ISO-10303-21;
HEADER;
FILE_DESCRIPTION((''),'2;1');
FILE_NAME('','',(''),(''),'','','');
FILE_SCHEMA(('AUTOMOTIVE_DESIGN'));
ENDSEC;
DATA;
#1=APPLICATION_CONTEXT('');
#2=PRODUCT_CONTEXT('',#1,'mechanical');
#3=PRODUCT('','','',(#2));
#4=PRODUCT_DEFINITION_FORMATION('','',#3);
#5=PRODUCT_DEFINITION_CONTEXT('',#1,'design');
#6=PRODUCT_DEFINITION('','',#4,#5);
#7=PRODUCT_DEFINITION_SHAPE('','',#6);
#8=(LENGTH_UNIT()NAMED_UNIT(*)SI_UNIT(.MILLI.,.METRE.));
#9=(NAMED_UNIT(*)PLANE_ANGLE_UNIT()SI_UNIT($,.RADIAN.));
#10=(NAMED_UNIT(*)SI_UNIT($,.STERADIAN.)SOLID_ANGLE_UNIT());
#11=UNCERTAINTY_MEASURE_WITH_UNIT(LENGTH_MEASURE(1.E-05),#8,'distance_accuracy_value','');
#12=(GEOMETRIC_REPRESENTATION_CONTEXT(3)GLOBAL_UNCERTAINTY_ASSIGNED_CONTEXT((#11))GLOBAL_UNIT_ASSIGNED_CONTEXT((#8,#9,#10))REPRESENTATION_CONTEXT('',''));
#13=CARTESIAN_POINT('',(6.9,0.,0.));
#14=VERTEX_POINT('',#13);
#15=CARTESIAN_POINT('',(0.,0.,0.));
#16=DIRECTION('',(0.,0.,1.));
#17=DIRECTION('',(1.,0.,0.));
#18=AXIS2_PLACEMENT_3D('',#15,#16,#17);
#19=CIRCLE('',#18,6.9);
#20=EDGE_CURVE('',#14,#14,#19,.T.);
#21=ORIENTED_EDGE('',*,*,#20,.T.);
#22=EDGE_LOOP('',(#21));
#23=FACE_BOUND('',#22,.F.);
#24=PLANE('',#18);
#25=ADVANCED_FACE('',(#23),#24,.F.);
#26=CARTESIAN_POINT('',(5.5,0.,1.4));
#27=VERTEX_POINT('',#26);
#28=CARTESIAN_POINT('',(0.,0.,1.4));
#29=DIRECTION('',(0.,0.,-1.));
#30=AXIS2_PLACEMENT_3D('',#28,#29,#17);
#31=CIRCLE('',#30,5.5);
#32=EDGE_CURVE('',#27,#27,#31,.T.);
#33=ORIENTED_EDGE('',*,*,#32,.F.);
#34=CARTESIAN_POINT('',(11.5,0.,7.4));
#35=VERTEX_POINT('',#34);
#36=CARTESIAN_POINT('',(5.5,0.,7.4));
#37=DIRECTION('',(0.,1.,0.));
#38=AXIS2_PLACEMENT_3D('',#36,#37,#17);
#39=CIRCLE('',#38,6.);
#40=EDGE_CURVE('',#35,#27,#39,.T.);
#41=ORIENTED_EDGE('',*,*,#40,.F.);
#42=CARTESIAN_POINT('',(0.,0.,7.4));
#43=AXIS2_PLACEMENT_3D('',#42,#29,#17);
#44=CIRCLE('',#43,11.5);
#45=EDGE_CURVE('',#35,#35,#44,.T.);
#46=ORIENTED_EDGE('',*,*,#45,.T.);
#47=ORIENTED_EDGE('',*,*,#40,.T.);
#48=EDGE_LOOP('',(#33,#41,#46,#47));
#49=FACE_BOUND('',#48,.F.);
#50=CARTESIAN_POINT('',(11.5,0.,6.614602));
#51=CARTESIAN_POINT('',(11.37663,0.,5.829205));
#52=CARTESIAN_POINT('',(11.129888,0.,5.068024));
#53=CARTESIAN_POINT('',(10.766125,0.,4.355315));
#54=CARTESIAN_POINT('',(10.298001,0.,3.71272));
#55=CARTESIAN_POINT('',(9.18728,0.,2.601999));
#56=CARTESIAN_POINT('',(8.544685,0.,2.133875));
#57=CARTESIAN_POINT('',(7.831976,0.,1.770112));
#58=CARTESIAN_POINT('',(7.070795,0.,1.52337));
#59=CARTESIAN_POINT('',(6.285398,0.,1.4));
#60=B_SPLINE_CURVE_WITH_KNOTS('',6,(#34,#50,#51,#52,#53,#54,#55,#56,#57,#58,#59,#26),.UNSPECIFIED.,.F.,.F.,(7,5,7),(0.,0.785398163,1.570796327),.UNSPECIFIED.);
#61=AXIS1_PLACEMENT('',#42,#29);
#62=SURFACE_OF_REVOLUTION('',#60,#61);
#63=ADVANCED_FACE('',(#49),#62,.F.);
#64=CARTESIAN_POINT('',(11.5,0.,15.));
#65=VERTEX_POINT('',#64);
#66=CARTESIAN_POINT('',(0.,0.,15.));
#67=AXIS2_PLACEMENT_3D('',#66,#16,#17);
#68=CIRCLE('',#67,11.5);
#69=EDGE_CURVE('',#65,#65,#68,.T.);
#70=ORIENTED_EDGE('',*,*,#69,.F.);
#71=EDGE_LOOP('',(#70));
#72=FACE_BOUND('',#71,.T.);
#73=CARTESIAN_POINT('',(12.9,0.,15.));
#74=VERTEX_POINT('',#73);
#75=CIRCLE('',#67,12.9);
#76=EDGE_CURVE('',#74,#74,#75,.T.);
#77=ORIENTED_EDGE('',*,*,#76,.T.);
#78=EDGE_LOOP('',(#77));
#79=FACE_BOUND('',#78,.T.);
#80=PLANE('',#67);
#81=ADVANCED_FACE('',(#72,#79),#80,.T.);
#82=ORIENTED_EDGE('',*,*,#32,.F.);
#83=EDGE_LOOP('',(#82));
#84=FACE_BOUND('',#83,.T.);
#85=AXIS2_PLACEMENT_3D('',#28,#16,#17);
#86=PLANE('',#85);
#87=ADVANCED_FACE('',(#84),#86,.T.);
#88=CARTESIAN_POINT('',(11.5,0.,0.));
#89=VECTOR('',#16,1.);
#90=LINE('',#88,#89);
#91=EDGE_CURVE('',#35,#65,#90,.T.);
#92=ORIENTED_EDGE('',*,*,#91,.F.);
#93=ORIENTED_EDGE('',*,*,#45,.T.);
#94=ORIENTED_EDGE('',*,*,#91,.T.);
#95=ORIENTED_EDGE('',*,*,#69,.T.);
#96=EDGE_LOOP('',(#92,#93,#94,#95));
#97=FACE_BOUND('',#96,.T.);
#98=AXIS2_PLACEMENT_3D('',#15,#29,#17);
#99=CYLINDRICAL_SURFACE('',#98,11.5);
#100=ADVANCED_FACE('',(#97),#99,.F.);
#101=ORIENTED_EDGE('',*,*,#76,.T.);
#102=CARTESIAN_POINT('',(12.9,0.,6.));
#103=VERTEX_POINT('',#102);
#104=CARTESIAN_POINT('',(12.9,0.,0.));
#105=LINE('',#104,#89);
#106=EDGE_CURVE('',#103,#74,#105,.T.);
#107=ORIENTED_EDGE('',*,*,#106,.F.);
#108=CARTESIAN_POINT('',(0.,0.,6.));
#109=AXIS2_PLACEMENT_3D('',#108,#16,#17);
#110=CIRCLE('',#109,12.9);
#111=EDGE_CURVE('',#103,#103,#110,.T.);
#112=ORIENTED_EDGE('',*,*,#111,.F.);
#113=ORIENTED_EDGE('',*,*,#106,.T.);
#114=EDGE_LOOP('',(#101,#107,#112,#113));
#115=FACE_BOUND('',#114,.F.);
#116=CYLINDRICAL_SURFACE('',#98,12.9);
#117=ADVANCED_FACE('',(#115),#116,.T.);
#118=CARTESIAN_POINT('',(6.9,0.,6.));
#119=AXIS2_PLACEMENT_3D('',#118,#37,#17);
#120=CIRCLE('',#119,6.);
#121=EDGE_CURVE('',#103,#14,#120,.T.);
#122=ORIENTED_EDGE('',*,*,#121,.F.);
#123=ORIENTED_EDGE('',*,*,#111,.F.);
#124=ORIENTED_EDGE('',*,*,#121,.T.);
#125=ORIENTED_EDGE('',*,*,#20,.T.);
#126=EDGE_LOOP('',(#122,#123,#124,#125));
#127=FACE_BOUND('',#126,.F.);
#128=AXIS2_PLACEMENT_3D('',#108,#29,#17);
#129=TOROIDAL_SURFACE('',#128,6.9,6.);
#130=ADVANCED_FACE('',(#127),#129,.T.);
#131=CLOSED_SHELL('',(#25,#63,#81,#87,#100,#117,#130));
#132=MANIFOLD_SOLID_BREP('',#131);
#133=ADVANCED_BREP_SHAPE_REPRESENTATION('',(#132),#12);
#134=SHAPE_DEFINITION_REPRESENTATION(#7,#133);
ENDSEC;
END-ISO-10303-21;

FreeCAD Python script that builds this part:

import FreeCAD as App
import Part
import Sketcher

V = App.Vector


def edges_at(feature, points):
    """Names of the edges that pass closest to the given points."""
    edges = feature.Shape.Edges
    near = lambda p: min(range(len(edges)), key=lambda i: edges[i].distToShape(Part.Vertex(*p))[0])
    return sorted({f"Edge{near(p) + 1}" for p in points})


def faces_at(feature, points):
    """Names of the faces that lie closest to the given points."""
    faces = feature.Shape.Faces
    near = lambda p: min(range(len(faces)), key=lambda i: faces[i].distToShape(Part.Vertex(*p))[0])
    return sorted({f"Face{near(p) + 1}" for p in points})

doc = App.newDocument("Part")
params = doc.addObject("Spreadsheet::Sheet", "Params")
for row, (alias, value) in enumerate([
    ("sketch1_diameter", "25.8 mm"),
    ("pad1_length", "15 mm"),
    ("thickness_wall", "1.4 mm"),
    ("fillet_radius", "6 mm"),
], start=1):
    params.set(f"A{row}", alias)
    params.set(f"B{row}", "=" + value)
    params.setAlias(f"B{row}", alias)

body = doc.addObject("PartDesign::Body", "Body")

sketch1 = body.newObject("Sketcher::SketchObject", "Sketch")
sketch1.AttachmentSupport = (doc.getObject("XY_Plane"), [""])
sketch1.MapMode = "FlatFace"
sketch1.addGeometry(Part.Circle(V(0, 0, 0), V(0, 0, 1), 13), False)
sketch1.addConstraint([
    Sketcher.Constraint("Coincident", 0, 3, -1, 1),
    Sketcher.Constraint("Diameter", 0, 25.8),
])
sketch1.setExpression("Constraints[1]", "Params.sketch1_diameter")
pad1 = body.newObject("PartDesign::Pad", "Pad")
pad1.Profile = sketch1
pad1.setExpression("Length", "Params.pad1_length")
doc.recompute()

thickness = body.newObject("PartDesign::Thickness", "Thickness")
thickness.Base = (pad1, faces_at(pad1, [(0, 0, 15)]))
thickness.setExpression("Value", "Params.thickness_wall")
thickness.Reversed = True
thickness.Join = "Arc"
doc.recompute()

fillet = body.newObject("PartDesign::Fillet", "Fillet")
fillet.Base = (thickness, edges_at(thickness, [(-11.5, 0, 1.4), (-12.9, 0, 0)]))
fillet.setExpression("Radius", "Params.fillet_radius")

doc.recompute()
